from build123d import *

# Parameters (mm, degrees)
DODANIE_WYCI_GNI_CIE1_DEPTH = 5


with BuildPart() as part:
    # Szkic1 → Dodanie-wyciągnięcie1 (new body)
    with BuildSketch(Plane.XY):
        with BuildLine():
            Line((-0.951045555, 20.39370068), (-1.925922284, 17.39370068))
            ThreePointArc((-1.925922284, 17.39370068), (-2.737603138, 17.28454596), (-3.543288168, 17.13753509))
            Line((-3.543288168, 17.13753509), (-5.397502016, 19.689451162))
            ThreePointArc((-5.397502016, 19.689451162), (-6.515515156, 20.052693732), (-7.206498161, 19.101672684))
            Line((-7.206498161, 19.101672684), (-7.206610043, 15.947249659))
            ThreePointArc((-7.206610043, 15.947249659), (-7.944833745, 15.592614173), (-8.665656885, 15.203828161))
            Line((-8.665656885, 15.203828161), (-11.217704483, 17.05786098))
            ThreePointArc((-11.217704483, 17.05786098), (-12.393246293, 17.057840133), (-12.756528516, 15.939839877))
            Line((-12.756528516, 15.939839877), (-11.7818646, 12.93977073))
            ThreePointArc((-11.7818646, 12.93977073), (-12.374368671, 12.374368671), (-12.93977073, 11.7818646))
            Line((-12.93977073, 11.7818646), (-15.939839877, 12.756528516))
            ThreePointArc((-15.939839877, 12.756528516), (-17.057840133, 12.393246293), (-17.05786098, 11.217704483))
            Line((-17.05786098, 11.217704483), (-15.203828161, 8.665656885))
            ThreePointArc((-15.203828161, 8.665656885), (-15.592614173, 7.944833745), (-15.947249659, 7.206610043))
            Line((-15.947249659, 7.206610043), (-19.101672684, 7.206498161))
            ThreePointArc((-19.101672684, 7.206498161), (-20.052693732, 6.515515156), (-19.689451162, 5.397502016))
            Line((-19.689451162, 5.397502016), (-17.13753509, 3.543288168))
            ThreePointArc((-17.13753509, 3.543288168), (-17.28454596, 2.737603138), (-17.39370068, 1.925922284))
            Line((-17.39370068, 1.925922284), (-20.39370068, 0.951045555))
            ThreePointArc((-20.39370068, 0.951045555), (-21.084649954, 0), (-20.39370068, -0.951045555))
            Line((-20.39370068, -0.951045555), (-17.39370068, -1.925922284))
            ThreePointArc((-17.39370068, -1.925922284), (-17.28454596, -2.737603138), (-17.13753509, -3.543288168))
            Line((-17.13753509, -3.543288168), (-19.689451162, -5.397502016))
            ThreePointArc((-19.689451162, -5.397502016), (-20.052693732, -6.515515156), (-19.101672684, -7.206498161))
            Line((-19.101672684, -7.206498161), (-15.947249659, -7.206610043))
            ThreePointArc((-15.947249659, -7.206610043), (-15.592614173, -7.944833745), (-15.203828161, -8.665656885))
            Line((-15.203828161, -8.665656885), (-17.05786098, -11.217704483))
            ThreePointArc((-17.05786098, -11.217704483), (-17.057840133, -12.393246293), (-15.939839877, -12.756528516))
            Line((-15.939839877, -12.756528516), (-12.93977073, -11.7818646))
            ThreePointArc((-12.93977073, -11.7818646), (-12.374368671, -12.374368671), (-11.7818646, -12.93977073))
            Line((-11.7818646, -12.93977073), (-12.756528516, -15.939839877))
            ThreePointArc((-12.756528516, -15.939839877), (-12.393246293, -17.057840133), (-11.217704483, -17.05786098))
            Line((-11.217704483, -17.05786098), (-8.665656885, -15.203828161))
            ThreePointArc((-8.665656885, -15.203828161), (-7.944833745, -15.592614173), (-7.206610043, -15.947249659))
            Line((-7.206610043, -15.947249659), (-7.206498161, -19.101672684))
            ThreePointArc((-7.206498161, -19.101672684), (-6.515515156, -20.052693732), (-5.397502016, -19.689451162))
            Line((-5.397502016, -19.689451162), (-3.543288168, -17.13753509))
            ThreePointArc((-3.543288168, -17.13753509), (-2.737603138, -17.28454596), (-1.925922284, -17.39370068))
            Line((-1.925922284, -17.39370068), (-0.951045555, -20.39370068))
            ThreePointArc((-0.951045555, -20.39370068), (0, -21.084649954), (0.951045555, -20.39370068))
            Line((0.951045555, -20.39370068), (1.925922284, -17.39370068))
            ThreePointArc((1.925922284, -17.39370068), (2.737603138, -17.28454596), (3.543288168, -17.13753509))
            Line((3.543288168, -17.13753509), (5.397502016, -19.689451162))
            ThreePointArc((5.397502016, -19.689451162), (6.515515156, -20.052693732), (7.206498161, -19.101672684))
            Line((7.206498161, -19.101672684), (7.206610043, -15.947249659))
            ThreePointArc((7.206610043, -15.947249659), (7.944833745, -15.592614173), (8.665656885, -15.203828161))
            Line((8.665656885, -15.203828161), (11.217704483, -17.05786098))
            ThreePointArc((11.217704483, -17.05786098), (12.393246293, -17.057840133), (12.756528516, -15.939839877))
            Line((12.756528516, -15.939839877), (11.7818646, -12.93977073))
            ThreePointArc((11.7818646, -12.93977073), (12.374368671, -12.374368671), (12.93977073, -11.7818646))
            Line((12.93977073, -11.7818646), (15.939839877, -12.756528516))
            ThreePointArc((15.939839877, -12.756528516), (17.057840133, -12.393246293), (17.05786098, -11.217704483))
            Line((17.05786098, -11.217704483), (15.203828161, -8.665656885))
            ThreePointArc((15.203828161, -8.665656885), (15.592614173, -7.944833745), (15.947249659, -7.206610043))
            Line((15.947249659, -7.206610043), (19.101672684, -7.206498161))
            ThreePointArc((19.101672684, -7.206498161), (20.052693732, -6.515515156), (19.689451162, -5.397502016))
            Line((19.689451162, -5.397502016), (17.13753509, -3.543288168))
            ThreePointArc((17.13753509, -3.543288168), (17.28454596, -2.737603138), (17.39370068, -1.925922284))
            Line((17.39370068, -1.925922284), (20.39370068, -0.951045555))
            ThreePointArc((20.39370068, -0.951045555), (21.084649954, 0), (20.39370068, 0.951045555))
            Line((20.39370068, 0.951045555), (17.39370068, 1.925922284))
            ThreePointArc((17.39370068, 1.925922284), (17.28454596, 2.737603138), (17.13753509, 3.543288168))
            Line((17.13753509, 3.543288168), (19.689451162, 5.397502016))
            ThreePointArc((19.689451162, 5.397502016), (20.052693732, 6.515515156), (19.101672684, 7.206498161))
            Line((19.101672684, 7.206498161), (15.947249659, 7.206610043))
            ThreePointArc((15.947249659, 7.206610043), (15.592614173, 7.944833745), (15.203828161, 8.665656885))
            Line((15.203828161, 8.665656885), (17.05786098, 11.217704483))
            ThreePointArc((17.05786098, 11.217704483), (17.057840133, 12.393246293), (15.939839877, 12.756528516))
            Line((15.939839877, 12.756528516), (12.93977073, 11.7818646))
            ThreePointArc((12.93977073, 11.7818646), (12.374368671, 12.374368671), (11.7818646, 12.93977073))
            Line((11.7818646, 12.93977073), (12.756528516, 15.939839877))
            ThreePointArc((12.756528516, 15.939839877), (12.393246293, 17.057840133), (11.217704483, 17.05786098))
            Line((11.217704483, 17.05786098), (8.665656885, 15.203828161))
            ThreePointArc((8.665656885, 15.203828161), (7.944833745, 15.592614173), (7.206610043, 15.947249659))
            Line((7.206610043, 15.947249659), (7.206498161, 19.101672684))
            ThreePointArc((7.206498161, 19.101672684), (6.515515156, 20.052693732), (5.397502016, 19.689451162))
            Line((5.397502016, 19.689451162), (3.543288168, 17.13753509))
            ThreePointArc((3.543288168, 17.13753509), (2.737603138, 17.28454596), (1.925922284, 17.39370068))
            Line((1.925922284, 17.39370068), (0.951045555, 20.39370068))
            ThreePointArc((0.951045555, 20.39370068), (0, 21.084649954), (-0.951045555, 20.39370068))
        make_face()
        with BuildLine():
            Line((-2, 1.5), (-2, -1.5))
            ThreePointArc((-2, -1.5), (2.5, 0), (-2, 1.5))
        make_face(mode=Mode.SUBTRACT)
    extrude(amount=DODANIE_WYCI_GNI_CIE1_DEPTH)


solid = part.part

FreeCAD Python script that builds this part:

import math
import FreeCAD as App
import Part
import Sketcher

V = App.Vector

doc = App.newDocument("Part")
params = doc.addObject("Spreadsheet::Sheet", "Params")
for row, (alias, value) in enumerate([
    ("sketch1_radius", "1 mm"),
    ("sketch1_radius2", "17.5 mm"),
    ("sketch1_radius3", "2.5 mm"),
    ("sketch1_height", "3 mm"),
    ("pad1_length", "5 mm"),
], start=1):
    params.set(f"A{row}", alias)
    params.set(f"B{row}", "=" + value)
    params.setAlias(f"B{row}", alias)

body = doc.addObject("PartDesign::Body", "Body")

sketch1 = doc.addObject("Sketcher::SketchObject", "Sketch")
body.addObject(sketch1)
sketch1.AttachmentSupport = (doc.XY_Plane, [""])
sketch1.MapMode = "FlatFace"
sketch1.addGeometry([
    Part.LineSegment(V(-1, 20.4, 0), V(-1.9, 17.4, 0)),
    Part.ArcOfCircle(Part.Circle(V(0, 0, 0), V(0, 0, 1), 17.5), math.radians(96.32), math.radians(101.68)),
    Part.LineSegment(V(-3.5, 17.1, 0), V(-5.4, 19.7, 0)),
    Part.ArcOfCircle(Part.Circle(V(-6.2, 19.1, 0), V(0, 0, 1), 1), math.radians(36), math.radians(180)),
    Part.LineSegment(V(-7.2, 19.1, 0), V(-7.2, 15.9, 0)),
    Part.ArcOfCircle(Part.Circle(V(0, 0, 0), V(0, 0, 1), 17.5), math.radians(114.32), math.radians(119.68)),
    Part.LineSegment(V(-8.7, 15.2, 0), V(-11.2, 17.1, 0)),
    Part.ArcOfCircle(Part.Circle(V(-11.8, 16.2, 0), V(0, 0, 1), 1), math.radians(54), math.radians(198)),
    Part.LineSegment(V(-12.8, 15.9, 0), V(-11.8, 12.9, 0)),
    Part.ArcOfCircle(Part.Circle(V(0, 0, 0), V(0, 0, 1), 17.5), math.radians(132.32), math.radians(137.68)),
    Part.LineSegment(V(-12.9, 11.8, 0), V(-15.9, 12.8, 0)),
    Part.ArcOfCircle(Part.Circle(V(-16.2, 11.8, 0), V(0, 0, 1), 1), math.radians(72), math.radians(216)),
    Part.LineSegment(V(-17.1, 11.2, 0), V(-15.2, 8.7, 0)),
    Part.ArcOfCircle(Part.Circle(V(0, 0, 0), V(0, 0, 1), 17.5), math.radians(150.32), math.radians(155.68)),
    Part.LineSegment(V(-15.9, 7.2, 0), V(-19.1, 7.2, 0)),
    Part.ArcOfCircle(Part.Circle(V(-19.1, 6.2, 0), V(0, 0, 1), 1), math.radians(90), math.radians(234)),
    Part.LineSegment(V(-19.7, 5.4, 0), V(-17.1, 3.5, 0)),
    Part.ArcOfCircle(Part.Circle(V(0, 0, 0), V(0, 0, 1), 17.5), math.radians(168.32), math.radians(173.68)),
    Part.LineSegment(V(-17.4, 1.9, 0), V(-20.4, 1, 0)),
    Part.ArcOfCircle(Part.Circle(V(-20.1, 0, 0), V(0, 0, 1), 1), math.radians(108), math.radians(252)),
    Part.LineSegment(V(-20.4, -1, 0), V(-17.4, -1.9, 0)),
    Part.ArcOfCircle(Part.Circle(V(0, 0, 0), V(0, 0, 1), 17.5), math.radians(-173.68), math.radians(-168.32)),
    Part.LineSegment(V(-17.1, -3.5, 0), V(-19.7, -5.4, 0)),
    Part.ArcOfCircle(Part.Circle(V(-19.1, -6.2, 0), V(0, 0, 1), 1), math.radians(126), math.radians(270)),
    Part.LineSegment(V(-19.1, -7.2, 0), V(-15.9, -7.2, 0)),
    Part.ArcOfCircle(Part.Circle(V(0, 0, 0), V(0, 0, 1), 17.5), math.radians(-155.68), math.radians(-150.32)),
    Part.LineSegment(V(-15.2, -8.7, 0), V(-17.1, -11.2, 0)),
    Part.ArcOfCircle(Part.Circle(V(-16.2, -11.8, 0), V(0, 0, 1), 1), math.radians(144), math.radians(288)),
    Part.LineSegment(V(-15.9, -12.8, 0), V(-12.9, -11.8, 0)),
    Part.ArcOfCircle(Part.Circle(V(0, 0, 0), V(0, 0, 1), 17.5), math.radians(-137.68), math.radians(-132.32)),
    Part.LineSegment(V(-11.8, -12.9, 0), V(-12.8, -15.9, 0)),
    Part.ArcOfCircle(Part.Circle(V(-11.8, -16.2, 0), V(0, 0, 1), 1), math.radians(162), math.radians(306)),
    Part.LineSegment(V(-11.2, -17.1, 0), V(-8.7, -15.2, 0)),
    Part.ArcOfCircle(Part.Circle(V(0, 0, 0), V(0, 0, 1), 17.5), math.radians(-119.68), math.radians(-114.32)),
    Part.LineSegment(V(-7.2, -15.9, 0), V(-7.2, -19.1, 0)),
    Part.ArcOfCircle(Part.Circle(V(-6.2, -19.1, 0), V(0, 0, 1), 1), math.radians(-180), math.radians(-36)),
    Part.LineSegment(V(-5.4, -19.7, 0), V(-3.5, -17.1, 0)),
    Part.ArcOfCircle(Part.Circle(V(0, 0, 0), V(0, 0, 1), 17.5), math.radians(-101.68), math.radians(-96.32)),
    Part.LineSegment(V(-1.9, -17.4, 0), V(-1, -20.4, 0)),
    Part.ArcOfCircle(Part.Circle(V(0, -20.1, 0), V(0, 0, 1), 1), math.radians(-162), math.radians(-18)),
    Part.LineSegment(V(1, -20.4, 0), V(1.9, -17.4, 0)),
    Part.ArcOfCircle(Part.Circle(V(0, 0, 0), V(0, 0, 1), 17.5), math.radians(-83.68), math.radians(-78.32)),
    Part.LineSegment(V(3.5, -17.1, 0), V(5.4, -19.7, 0)),
    Part.ArcOfCircle(Part.Circle(V(6.2, -19.1, 0), V(0, 0, 1), 1), math.radians(-144), math.radians(0)),
    Part.LineSegment(V(7.2, -19.1, 0), V(7.2, -15.9, 0)),
    Part.ArcOfCircle(Part.Circle(V(0, 0, 0), V(0, 0, 1), 17.5), math.radians(-65.68), math.radians(-60.32)),
    Part.LineSegment(V(8.7, -15.2, 0), V(11.2, -17.1, 0)),
    Part.ArcOfCircle(Part.Circle(V(11.8, -16.2, 0), V(0, 0, 1), 1), math.radians(-126), math.radians(18)),
    Part.LineSegment(V(12.8, -15.9, 0), V(11.8, -12.9, 0)),
    Part.ArcOfCircle(Part.Circle(V(0, 0, 0), V(0, 0, 1), 17.5), math.radians(-47.68), math.radians(-42.32)),
    Part.LineSegment(V(12.9, -11.8, 0), V(15.9, -12.8, 0)),
    Part.ArcOfCircle(Part.Circle(V(16.2, -11.8, 0), V(0, 0, 1), 1), math.radians(-108), math.radians(36)),
    Part.LineSegment(V(17.1, -11.2, 0), V(15.2, -8.7, 0)),
    Part.ArcOfCircle(Part.Circle(V(0, 0, 0), V(0, 0, 1), 17.5), math.radians(-29.68), math.radians(-24.32)),
    Part.LineSegment(V(15.9, -7.2, 0), V(19.1, -7.2, 0)),
    Part.ArcOfCircle(Part.Circle(V(19.1, -6.2, 0), V(0, 0, 1), 1), math.radians(-90), math.radians(54)),
    Part.LineSegment(V(19.7, -5.4, 0), V(17.1, -3.5, 0)),
    Part.ArcOfCircle(Part.Circle(V(0, 0, 0), V(0, 0, 1), 17.5), math.radians(-11.68), math.radians(-6.32)),
    Part.LineSegment(V(17.4, -1.9, 0), V(20.4, -1, 0)),
    Part.ArcOfCircle(Part.Circle(V(20.1, 0, 0), V(0, 0, 1), 1), math.radians(-72), math.radians(72)),
    Part.LineSegment(V(20.4, 1, 0), V(17.4, 1.9, 0)),
    Part.ArcOfCircle(Part.Circle(V(0, 0, 0), V(0, 0, 1), 17.5), math.radians(6.32), math.radians(11.68)),
    Part.LineSegment(V(17.1, 3.5, 0), V(19.7, 5.4, 0)),
    Part.ArcOfCircle(Part.Circle(V(19.1, 6.2, 0), V(0, 0, 1), 1), math.radians(-54), math.radians(90)),
    Part.LineSegment(V(19.1, 7.2, 0), V(15.9, 7.2, 0)),
    Part.ArcOfCircle(Part.Circle(V(0, 0, 0), V(0, 0, 1), 17.5), math.radians(24.32), math.radians(29.68)),
    Part.LineSegment(V(15.2, 8.7, 0), V(17.1, 11.2, 0)),
    Part.ArcOfCircle(Part.Circle(V(16.2, 11.8, 0), V(0, 0, 1), 1), math.radians(-36), math.radians(108)),
    Part.LineSegment(V(15.9, 12.8, 0), V(12.9, 11.8, 0)),
    Part.ArcOfCircle(Part.Circle(V(0, 0, 0), V(0, 0, 1), 17.5), math.radians(42.32), math.radians(47.68)),
    Part.LineSegment(V(11.8, 12.9, 0), V(12.8, 15.9, 0)),
    Part.ArcOfCircle(Part.Circle(V(11.8, 16.2, 0), V(0, 0, 1), 1), math.radians(-18), math.radians(126)),
    Part.LineSegment(V(11.2, 17.1, 0), V(8.7, 15.2, 0)),
    Part.ArcOfCircle(Part.Circle(V(0, 0, 0), V(0, 0, 1), 17.5), math.radians(60.32), math.radians(65.68)),
    Part.LineSegment(V(7.2, 15.9, 0), V(7.2, 19.1, 0)),
    Part.ArcOfCircle(Part.Circle(V(6.2, 19.1, 0), V(0, 0, 1), 1), math.radians(0), math.radians(144)),
    Part.LineSegment(V(5.4, 19.7, 0), V(3.5, 17.1, 0)),
    Part.ArcOfCircle(Part.Circle(V(0, 0, 0), V(0, 0, 1), 17.5), math.radians(78.32), math.radians(83.68)),
    Part.LineSegment(V(1.9, 17.4, 0), V(1, 20.4, 0)),
    Part.ArcOfCircle(Part.Circle(V(0, 20.1, 0), V(0, 0, 1), 1), math.radians(18), math.radians(162)),
    Part.LineSegment(V(-2, -1.5, 0), V(-2, 1.5, 0)),
    Part.ArcOfCircle(Part.Circle(V(0, 0, 0), V(0, 0, 1), 2.5), math.radians(-143), math.radians(143)),
], False)
sketch1.addConstraint([
    Sketcher.Constraint("Coincident", 0, 2, 1, 1),
    Sketcher.Constraint("Coincident", 1, 2, 2, 1),
    Sketcher.Constraint("Tangent", 2, 2, 3, 1),
    Sketcher.Constraint("Tangent", 3, 2, 4, 1),
    Sketcher.Constraint("Coincident", 4, 2, 5, 1),
    Sketcher.Constraint("Coincident", 5, 2, 6, 1),
    Sketcher.Constraint("Tangent", 6, 2, 7, 1),
    Sketcher.Constraint("Tangent", 7, 2, 8, 1),
    Sketcher.Constraint("Coincident", 8, 2, 9, 1),
    Sketcher.Constraint("Coincident", 9, 2, 10, 1),
    Sketcher.Constraint("Tangent", 10, 2, 11, 1),
    Sketcher.Constraint("Tangent", 11, 2, 12, 1),
    Sketcher.Constraint("Coincident", 12, 2, 13, 1),
    Sketcher.Constraint("Coincident", 13, 2, 14, 1),
    Sketcher.Constraint("Tangent", 14, 2, 15, 1),
    Sketcher.Constraint("Tangent", 15, 2, 16, 1),
    Sketcher.Constraint("Coincident", 16, 2, 17, 1),
    Sketcher.Constraint("Coincident", 17, 2, 18, 1),
    Sketcher.Constraint("Tangent", 18, 2, 19, 1),
    Sketcher.Constraint("Tangent", 19, 2, 20, 1),
    Sketcher.Constraint("Coincident", 20, 2, 21, 1),
    Sketcher.Constraint("Coincident", 21, 2, 22, 1),
    Sketcher.Constraint("Tangent", 22, 2, 23, 1),
    Sketcher.Constraint("Tangent", 23, 2, 24, 1),
    Sketcher.Constraint("Coincident", 24, 2, 25, 1),
    Sketcher.Constraint("Coincident", 25, 2, 26, 1),
    Sketcher.Constraint("Tangent", 26, 2, 27, 1),
    Sketcher.Constraint("Tangent", 27, 2, 28, 1),
    Sketcher.Constraint("Coincident", 28, 2, 29, 1),
    Sketcher.Constraint("Coincident", 29, 2, 30, 1),
    Sketcher.Constraint("Tangent", 30, 2, 31, 1),
    Sketcher.Constraint("Tangent", 31, 2, 32, 1),
    Sketcher.Constraint("Coincident", 32, 2, 33, 1),
    Sketcher.Constraint("Coincident", 33, 2, 34, 1),
    Sketcher.Constraint("Tangent", 34, 2, 35, 1),
    Sketcher.Constraint("Tangent", 35, 2, 36, 1),
    Sketcher.Constraint("Coincident", 36, 2, 37, 1),
    Sketcher.Constraint("Coincident", 37, 2, 38, 1),
    Sketcher.Constraint("Tangent", 38, 2, 39, 1),
    Sketcher.Constraint("Tangent", 39, 2, 40, 1),
    Sketcher.Constraint("Coincident", 40, 2, 41, 1),
    Sketcher.Constraint("Coincident", 41, 2, 42, 1),
    Sketcher.Constraint("Tangent", 42, 2, 43, 1),
    Sketcher.Constraint("Tangent", 43, 2, 44, 1),
    Sketcher.Constraint("Coincident", 44, 2, 45, 1),
    Sketcher.Constraint("Coincident", 45, 2, 46, 1),
    Sketcher.Constraint("Tangent", 46, 2, 47, 1),
    Sketcher.Constraint("Tangent", 47, 2, 48, 1),
    Sketcher.Constraint("Coincident", 48, 2, 49, 1),
    Sketcher.Constraint("Coincident", 49, 2, 50, 1),
    Sketcher.Constraint("Tangent", 50, 2, 51, 1),
    Sketcher.Constraint("Tangent", 51, 2, 52, 1),
    Sketcher.Constraint("Coincident", 52, 2, 53, 1),
    Sketcher.Constraint("Coincident", 53, 2, 54, 1),
    Sketcher.Constraint("Tangent", 54, 2, 55, 1),
    Sketcher.Constraint("Tangent", 55, 2, 56, 1),
    Sketcher.Constraint("Coincident", 56, 2, 57, 1),
    Sketcher.Constraint("Coincident", 57, 2, 58, 1),
    Sketcher.Constraint("Tangent", 58, 2, 59, 1),
    Sketcher.Constraint("Tangent", 59, 2, 60, 1),
    Sketcher.Constraint("Coincident", 60, 2, 61, 1),
    Sketcher.Constraint("Coincident", 61, 2, 62, 1),
    Sketcher.Constraint("Tangent", 62, 2, 63, 1),
    Sketcher.Constraint("Tangent", 63, 2, 64, 1),
    Sketcher.Constraint("Coincident", 64, 2, 65, 1),
    Sketcher.Constraint("Coincident", 65, 2, 66, 1),
    Sketcher.Constraint("Tangent", 66, 2, 67, 1),
    Sketcher.Constraint("Tangent", 67, 2, 68, 1),
    Sketcher.Constraint("Coincident", 68, 2, 69, 1),
    Sketcher.Constraint("Coincident", 69, 2, 70, 1),
    Sketcher.Constraint("Tangent", 70, 2, 71, 1),
    Sketcher.Constraint("Tangent", 71, 2, 72, 1),
    Sketcher.Constraint("Coincident", 72, 2, 73, 1),
    Sketcher.Constraint("Coincident", 73, 2, 74, 1),
    Sketcher.Constraint("Tangent", 74, 2, 75, 1),
    Sketcher.Constraint("Tangent", 75, 2, 76, 1),
    Sketcher.Constraint("Coincident", 76, 2, 77, 1),
    Sketcher.Constraint("Coincident", 77, 2, 78, 1),
    Sketcher.Constraint("Tangent", 78, 2, 79, 1),
    Sketcher.Constraint("Tangent", 79, 2, 0, 1),
    Sketcher.Constraint("Coincident", 80, 1, 81, 1),
    Sketcher.Constraint("Coincident", 81, 2, 80, 2),
    Sketcher.Constraint("Vertical", 80),
    Sketcher.Constraint("Coincident", 1, 3, -1, 1),
    Sketcher.Constraint("Coincident", 5, 3, -1, 1),
    Sketcher.Constraint("Coincident", 9, 3, -1, 1),
    Sketcher.Constraint("Coincident", 13, 3, -1, 1),
    Sketcher.Constraint("Coincident", 17, 3, -1, 1),
    Sketcher.Constraint("Coincident", 21, 3, -1, 1),
    Sketcher.Constraint("Coincident", 25, 3, -1, 1),
    Sketcher.Constraint("Coincident", 29, 3, -1, 1),
    Sketcher.Constraint("Coincident", 33, 3, -1, 1),
    Sketcher.Constraint("Coincident", 37, 3, -1, 1),
    Sketcher.Constraint("Coincident", 41, 3, -1, 1),
    Sketcher.Constraint("Coincident", 45, 3, -1, 1),
    Sketcher.Constraint("Coincident", 49, 3, -1, 1),
    Sketcher.Constraint("Coincident", 53, 3, -1, 1),
    Sketcher.Constraint("Coincident", 57, 3, -1, 1),
    Sketcher.Constraint("Coincident", 61, 3, -1, 1),
    Sketcher.Constraint("Coincident", 65, 3, -1, 1),
    Sketcher.Constraint("Coincident", 69, 3, -1, 1),
    Sketcher.Constraint("Coincident", 73, 3, -1, 1),
    Sketcher.Constraint("Coincident", 77, 3, -1, 1),
    Sketcher.Constraint("Coincident", 81, 3, -1, 1),
    Sketcher.Constraint("Equal", 1, 5),
    Sketcher.Constraint("Equal", 3, 7),
    Sketcher.Constraint("Equal", 5, 9),
    Sketcher.Constraint("Equal", 7, 11),
    Sketcher.Constraint("Equal", 9, 13),
    Sketcher.Constraint("Equal", 11, 15),
    Sketcher.Constraint("Equal", 13, 17),
    Sketcher.Constraint("Equal", 15, 19),
    Sketcher.Constraint("Equal", 17, 21),
    Sketcher.Constraint("Equal", 19, 23),
    Sketcher.Constraint("Equal", 21, 25),
    Sketcher.Constraint("Equal", 23, 27),
    Sketcher.Constraint("Equal", 25, 29),
    Sketcher.Constraint("Equal", 27, 31),
    Sketcher.Constraint("Equal", 29, 33),
    Sketcher.Constraint("Equal", 31, 35),
    Sketcher.Constraint("Equal", 33, 37),
    Sketcher.Constraint("Equal", 35, 39),
    Sketcher.Constraint("Equal", 37, 41),
    Sketcher.Constraint("Equal", 39, 43),
    Sketcher.Constraint("Equal", 41, 45),
    Sketcher.Constraint("Equal", 43, 47),
    Sketcher.Constraint("Equal", 45, 49),
    Sketcher.Constraint("Equal", 47, 51),
    Sketcher.Constraint("Equal", 49, 53),
    Sketcher.Constraint("Equal", 51, 55),
    Sketcher.Constraint("Equal", 53, 57),
    Sketcher.Constraint("Equal", 55, 59),
    Sketcher.Constraint("Equal", 57, 61),
    Sketcher.Constraint("Equal", 59, 63),
    Sketcher.Constraint("Equal", 61, 65),
    Sketcher.Constraint("Equal", 63, 67),
    Sketcher.Constraint("Equal", 65, 69),
    Sketcher.Constraint("Equal", 67, 71),
    Sketcher.Constraint("Equal", 69, 73),
    Sketcher.Constraint("Equal", 71, 75),
    Sketcher.Constraint("Equal", 73, 77),
    Sketcher.Constraint("Equal", 75, 79),
    Sketcher.Constraint("Symmetric", 3, 3, 43, 3, -1, 1),
    Sketcher.Constraint("Symmetric", 7, 3, 47, 3, -1, 1),
    Sketcher.Constraint("Symmetric", 11, 3, 51, 3, -1, 1),
    Sketcher.Constraint("Symmetric", 15, 3, 55, 3, -1, 1),
    Sketcher.Constraint("Symmetric", 19, 3, 59, 3, -1, 1),
    Sketcher.Constraint("Symmetric", 23, 3, 63, 3, -1, 1),
    Sketcher.Constraint("Symmetric", 27, 3, 67, 3, -1, 1),
    Sketcher.Constraint("Symmetric", 31, 3, 71, 3, -1, 1),
    Sketcher.Constraint("Symmetric", 35, 3, 75, 3, -1, 1),
    Sketcher.Constraint("Symmetric", 39, 3, 79, 3, -1, 1),
    Sketcher.Constraint("Symmetric", 35, 3, 43, 3, -2),
    Sketcher.Constraint("Symmetric", 31, 3, 47, 3, -2),
    Sketcher.Constraint("Symmetric", 27, 3, 51, 3, -2),
    Sketcher.Constraint("Symmetric", 23, 3, 55, 3, -2),
    Sketcher.Constraint("Symmetric", 38, 2, 39, 2, -2),
    Sketcher.Constraint("Symmetric", 19, 2, 58, 2, -2),
    Sketcher.Constraint("Perpendicular", 0, 20),
    Sketcher.Constraint("Perpendicular", 2, 22),
    Sketcher.Constraint("Perpendicular", 4, 24),
    Sketcher.Constraint("Perpendicular", 6, 26),
    Sketcher.Constraint("Perpendicular", 8, 28),
    Sketcher.Constraint("Perpendicular", 10, 30),
    Sketcher.Constraint("Perpendicular", 12, 32),
    Sketcher.Constraint("Perpendicular", 14, 34),
    Sketcher.Constraint("Perpendicular", 16, 36),
    Sketcher.Constraint("Perpendicular", 18, 38),
    Sketcher.Constraint("Perpendicular", 20, 40),
    Sketcher.Constraint("Perpendicular", 22, 42),
    Sketcher.Constraint("Perpendicular", 24, 44),
    Sketcher.Constraint("Perpendicular", 26, 46),
    Sketcher.Constraint("Perpendicular", 28, 48),
    Sketcher.Constraint("Perpendicular", 30, 50),
    Sketcher.Constraint("Perpendicular", 32, 52),
    Sketcher.Constraint("Perpendicular", 34, 54),
    Sketcher.Constraint("Perpendicular", 36, 56),
    Sketcher.Constraint("Perpendicular", 40, 60),
    Sketcher.Constraint("Perpendicular", 42, 62),
    Sketcher.Constraint("Perpendicular", 44, 64),
    Sketcher.Constraint("Perpendicular", 46, 66),
    Sketcher.Constraint("Perpendicular", 48, 68),
    Sketcher.Constraint("Perpendicular", 50, 70),
    Sketcher.Constraint("Perpendicular", 52, 72),
    Sketcher.Constraint("Perpendicular", 54, 74),
    Sketcher.Constraint("Perpendicular", 56, 76),
    Sketcher.Constraint("Perpendicular", 58, 78),
    Sketcher.Constraint("Horizontal", 36, 2, 41, 2),
    Sketcher.Constraint("Horizontal", 34, 2, 43, 2),
    Sketcher.Constraint("Horizontal", 32, 2, 45, 2),
    Sketcher.Constraint("Horizontal", 30, 2, 47, 2),
    Sketcher.Constraint("Equal", 0, 2),
    Sketcher.Constraint("Equal", 2, 4),
    Sketcher.Constraint("Equal", 4, 6),
    Sketcher.Constraint("Equal", 6, 8),
    Sketcher.Constraint("Equal", 8, 10),
    Sketcher.Constraint("Equal", 10, 12),
    Sketcher.Constraint("Equal", 12, 14),
    Sketcher.Constraint("Equal", 14, 16),
    Sketcher.Constraint("Equal", 16, 18),
    Sketcher.Constraint("Radius", 3, 1.0),
    Sketcher.Constraint("Radius", 1, 17.5),
    Sketcher.Constraint("Radius", 81, 2.5),
    Sketcher.Constraint("DistanceY", 80, 1, 80, 2, 3.0),
    Sketcher.Constraint("DistanceX", 3, 3, -1, 1, 6.206498),
    Sketcher.Constraint("DistanceY", -1, 1, 0, 2, 17.393701),
    Sketcher.Constraint("DistanceX", 18, 2, -1, 1, 20.393701),
    Sketcher.Constraint("DistanceX", 7, 3, -1, 1, 11.805461),
    Sketcher.Constraint("DistanceX", 1, 2, -1, 1, 3.543288),
    Sketcher.Constraint("DistanceY", -1, 1, 5, 2, 15.203828),
])
sketch1.setExpression("Constraints[200]", "Params.sketch1_radius")
sketch1.setExpression("Constraints[201]", "Params.sketch1_radius2")
sketch1.setExpression("Constraints[202]", "Params.sketch1_radius3")
sketch1.setExpression("Constraints[203]", "Params.sketch1_height")
pad1 = doc.addObject("PartDesign::Pad", "Pad")
body.addObject(pad1)
pad1.Profile = sketch1
pad1.setExpression("Length", "Params.pad1_length")

doc.recompute()
